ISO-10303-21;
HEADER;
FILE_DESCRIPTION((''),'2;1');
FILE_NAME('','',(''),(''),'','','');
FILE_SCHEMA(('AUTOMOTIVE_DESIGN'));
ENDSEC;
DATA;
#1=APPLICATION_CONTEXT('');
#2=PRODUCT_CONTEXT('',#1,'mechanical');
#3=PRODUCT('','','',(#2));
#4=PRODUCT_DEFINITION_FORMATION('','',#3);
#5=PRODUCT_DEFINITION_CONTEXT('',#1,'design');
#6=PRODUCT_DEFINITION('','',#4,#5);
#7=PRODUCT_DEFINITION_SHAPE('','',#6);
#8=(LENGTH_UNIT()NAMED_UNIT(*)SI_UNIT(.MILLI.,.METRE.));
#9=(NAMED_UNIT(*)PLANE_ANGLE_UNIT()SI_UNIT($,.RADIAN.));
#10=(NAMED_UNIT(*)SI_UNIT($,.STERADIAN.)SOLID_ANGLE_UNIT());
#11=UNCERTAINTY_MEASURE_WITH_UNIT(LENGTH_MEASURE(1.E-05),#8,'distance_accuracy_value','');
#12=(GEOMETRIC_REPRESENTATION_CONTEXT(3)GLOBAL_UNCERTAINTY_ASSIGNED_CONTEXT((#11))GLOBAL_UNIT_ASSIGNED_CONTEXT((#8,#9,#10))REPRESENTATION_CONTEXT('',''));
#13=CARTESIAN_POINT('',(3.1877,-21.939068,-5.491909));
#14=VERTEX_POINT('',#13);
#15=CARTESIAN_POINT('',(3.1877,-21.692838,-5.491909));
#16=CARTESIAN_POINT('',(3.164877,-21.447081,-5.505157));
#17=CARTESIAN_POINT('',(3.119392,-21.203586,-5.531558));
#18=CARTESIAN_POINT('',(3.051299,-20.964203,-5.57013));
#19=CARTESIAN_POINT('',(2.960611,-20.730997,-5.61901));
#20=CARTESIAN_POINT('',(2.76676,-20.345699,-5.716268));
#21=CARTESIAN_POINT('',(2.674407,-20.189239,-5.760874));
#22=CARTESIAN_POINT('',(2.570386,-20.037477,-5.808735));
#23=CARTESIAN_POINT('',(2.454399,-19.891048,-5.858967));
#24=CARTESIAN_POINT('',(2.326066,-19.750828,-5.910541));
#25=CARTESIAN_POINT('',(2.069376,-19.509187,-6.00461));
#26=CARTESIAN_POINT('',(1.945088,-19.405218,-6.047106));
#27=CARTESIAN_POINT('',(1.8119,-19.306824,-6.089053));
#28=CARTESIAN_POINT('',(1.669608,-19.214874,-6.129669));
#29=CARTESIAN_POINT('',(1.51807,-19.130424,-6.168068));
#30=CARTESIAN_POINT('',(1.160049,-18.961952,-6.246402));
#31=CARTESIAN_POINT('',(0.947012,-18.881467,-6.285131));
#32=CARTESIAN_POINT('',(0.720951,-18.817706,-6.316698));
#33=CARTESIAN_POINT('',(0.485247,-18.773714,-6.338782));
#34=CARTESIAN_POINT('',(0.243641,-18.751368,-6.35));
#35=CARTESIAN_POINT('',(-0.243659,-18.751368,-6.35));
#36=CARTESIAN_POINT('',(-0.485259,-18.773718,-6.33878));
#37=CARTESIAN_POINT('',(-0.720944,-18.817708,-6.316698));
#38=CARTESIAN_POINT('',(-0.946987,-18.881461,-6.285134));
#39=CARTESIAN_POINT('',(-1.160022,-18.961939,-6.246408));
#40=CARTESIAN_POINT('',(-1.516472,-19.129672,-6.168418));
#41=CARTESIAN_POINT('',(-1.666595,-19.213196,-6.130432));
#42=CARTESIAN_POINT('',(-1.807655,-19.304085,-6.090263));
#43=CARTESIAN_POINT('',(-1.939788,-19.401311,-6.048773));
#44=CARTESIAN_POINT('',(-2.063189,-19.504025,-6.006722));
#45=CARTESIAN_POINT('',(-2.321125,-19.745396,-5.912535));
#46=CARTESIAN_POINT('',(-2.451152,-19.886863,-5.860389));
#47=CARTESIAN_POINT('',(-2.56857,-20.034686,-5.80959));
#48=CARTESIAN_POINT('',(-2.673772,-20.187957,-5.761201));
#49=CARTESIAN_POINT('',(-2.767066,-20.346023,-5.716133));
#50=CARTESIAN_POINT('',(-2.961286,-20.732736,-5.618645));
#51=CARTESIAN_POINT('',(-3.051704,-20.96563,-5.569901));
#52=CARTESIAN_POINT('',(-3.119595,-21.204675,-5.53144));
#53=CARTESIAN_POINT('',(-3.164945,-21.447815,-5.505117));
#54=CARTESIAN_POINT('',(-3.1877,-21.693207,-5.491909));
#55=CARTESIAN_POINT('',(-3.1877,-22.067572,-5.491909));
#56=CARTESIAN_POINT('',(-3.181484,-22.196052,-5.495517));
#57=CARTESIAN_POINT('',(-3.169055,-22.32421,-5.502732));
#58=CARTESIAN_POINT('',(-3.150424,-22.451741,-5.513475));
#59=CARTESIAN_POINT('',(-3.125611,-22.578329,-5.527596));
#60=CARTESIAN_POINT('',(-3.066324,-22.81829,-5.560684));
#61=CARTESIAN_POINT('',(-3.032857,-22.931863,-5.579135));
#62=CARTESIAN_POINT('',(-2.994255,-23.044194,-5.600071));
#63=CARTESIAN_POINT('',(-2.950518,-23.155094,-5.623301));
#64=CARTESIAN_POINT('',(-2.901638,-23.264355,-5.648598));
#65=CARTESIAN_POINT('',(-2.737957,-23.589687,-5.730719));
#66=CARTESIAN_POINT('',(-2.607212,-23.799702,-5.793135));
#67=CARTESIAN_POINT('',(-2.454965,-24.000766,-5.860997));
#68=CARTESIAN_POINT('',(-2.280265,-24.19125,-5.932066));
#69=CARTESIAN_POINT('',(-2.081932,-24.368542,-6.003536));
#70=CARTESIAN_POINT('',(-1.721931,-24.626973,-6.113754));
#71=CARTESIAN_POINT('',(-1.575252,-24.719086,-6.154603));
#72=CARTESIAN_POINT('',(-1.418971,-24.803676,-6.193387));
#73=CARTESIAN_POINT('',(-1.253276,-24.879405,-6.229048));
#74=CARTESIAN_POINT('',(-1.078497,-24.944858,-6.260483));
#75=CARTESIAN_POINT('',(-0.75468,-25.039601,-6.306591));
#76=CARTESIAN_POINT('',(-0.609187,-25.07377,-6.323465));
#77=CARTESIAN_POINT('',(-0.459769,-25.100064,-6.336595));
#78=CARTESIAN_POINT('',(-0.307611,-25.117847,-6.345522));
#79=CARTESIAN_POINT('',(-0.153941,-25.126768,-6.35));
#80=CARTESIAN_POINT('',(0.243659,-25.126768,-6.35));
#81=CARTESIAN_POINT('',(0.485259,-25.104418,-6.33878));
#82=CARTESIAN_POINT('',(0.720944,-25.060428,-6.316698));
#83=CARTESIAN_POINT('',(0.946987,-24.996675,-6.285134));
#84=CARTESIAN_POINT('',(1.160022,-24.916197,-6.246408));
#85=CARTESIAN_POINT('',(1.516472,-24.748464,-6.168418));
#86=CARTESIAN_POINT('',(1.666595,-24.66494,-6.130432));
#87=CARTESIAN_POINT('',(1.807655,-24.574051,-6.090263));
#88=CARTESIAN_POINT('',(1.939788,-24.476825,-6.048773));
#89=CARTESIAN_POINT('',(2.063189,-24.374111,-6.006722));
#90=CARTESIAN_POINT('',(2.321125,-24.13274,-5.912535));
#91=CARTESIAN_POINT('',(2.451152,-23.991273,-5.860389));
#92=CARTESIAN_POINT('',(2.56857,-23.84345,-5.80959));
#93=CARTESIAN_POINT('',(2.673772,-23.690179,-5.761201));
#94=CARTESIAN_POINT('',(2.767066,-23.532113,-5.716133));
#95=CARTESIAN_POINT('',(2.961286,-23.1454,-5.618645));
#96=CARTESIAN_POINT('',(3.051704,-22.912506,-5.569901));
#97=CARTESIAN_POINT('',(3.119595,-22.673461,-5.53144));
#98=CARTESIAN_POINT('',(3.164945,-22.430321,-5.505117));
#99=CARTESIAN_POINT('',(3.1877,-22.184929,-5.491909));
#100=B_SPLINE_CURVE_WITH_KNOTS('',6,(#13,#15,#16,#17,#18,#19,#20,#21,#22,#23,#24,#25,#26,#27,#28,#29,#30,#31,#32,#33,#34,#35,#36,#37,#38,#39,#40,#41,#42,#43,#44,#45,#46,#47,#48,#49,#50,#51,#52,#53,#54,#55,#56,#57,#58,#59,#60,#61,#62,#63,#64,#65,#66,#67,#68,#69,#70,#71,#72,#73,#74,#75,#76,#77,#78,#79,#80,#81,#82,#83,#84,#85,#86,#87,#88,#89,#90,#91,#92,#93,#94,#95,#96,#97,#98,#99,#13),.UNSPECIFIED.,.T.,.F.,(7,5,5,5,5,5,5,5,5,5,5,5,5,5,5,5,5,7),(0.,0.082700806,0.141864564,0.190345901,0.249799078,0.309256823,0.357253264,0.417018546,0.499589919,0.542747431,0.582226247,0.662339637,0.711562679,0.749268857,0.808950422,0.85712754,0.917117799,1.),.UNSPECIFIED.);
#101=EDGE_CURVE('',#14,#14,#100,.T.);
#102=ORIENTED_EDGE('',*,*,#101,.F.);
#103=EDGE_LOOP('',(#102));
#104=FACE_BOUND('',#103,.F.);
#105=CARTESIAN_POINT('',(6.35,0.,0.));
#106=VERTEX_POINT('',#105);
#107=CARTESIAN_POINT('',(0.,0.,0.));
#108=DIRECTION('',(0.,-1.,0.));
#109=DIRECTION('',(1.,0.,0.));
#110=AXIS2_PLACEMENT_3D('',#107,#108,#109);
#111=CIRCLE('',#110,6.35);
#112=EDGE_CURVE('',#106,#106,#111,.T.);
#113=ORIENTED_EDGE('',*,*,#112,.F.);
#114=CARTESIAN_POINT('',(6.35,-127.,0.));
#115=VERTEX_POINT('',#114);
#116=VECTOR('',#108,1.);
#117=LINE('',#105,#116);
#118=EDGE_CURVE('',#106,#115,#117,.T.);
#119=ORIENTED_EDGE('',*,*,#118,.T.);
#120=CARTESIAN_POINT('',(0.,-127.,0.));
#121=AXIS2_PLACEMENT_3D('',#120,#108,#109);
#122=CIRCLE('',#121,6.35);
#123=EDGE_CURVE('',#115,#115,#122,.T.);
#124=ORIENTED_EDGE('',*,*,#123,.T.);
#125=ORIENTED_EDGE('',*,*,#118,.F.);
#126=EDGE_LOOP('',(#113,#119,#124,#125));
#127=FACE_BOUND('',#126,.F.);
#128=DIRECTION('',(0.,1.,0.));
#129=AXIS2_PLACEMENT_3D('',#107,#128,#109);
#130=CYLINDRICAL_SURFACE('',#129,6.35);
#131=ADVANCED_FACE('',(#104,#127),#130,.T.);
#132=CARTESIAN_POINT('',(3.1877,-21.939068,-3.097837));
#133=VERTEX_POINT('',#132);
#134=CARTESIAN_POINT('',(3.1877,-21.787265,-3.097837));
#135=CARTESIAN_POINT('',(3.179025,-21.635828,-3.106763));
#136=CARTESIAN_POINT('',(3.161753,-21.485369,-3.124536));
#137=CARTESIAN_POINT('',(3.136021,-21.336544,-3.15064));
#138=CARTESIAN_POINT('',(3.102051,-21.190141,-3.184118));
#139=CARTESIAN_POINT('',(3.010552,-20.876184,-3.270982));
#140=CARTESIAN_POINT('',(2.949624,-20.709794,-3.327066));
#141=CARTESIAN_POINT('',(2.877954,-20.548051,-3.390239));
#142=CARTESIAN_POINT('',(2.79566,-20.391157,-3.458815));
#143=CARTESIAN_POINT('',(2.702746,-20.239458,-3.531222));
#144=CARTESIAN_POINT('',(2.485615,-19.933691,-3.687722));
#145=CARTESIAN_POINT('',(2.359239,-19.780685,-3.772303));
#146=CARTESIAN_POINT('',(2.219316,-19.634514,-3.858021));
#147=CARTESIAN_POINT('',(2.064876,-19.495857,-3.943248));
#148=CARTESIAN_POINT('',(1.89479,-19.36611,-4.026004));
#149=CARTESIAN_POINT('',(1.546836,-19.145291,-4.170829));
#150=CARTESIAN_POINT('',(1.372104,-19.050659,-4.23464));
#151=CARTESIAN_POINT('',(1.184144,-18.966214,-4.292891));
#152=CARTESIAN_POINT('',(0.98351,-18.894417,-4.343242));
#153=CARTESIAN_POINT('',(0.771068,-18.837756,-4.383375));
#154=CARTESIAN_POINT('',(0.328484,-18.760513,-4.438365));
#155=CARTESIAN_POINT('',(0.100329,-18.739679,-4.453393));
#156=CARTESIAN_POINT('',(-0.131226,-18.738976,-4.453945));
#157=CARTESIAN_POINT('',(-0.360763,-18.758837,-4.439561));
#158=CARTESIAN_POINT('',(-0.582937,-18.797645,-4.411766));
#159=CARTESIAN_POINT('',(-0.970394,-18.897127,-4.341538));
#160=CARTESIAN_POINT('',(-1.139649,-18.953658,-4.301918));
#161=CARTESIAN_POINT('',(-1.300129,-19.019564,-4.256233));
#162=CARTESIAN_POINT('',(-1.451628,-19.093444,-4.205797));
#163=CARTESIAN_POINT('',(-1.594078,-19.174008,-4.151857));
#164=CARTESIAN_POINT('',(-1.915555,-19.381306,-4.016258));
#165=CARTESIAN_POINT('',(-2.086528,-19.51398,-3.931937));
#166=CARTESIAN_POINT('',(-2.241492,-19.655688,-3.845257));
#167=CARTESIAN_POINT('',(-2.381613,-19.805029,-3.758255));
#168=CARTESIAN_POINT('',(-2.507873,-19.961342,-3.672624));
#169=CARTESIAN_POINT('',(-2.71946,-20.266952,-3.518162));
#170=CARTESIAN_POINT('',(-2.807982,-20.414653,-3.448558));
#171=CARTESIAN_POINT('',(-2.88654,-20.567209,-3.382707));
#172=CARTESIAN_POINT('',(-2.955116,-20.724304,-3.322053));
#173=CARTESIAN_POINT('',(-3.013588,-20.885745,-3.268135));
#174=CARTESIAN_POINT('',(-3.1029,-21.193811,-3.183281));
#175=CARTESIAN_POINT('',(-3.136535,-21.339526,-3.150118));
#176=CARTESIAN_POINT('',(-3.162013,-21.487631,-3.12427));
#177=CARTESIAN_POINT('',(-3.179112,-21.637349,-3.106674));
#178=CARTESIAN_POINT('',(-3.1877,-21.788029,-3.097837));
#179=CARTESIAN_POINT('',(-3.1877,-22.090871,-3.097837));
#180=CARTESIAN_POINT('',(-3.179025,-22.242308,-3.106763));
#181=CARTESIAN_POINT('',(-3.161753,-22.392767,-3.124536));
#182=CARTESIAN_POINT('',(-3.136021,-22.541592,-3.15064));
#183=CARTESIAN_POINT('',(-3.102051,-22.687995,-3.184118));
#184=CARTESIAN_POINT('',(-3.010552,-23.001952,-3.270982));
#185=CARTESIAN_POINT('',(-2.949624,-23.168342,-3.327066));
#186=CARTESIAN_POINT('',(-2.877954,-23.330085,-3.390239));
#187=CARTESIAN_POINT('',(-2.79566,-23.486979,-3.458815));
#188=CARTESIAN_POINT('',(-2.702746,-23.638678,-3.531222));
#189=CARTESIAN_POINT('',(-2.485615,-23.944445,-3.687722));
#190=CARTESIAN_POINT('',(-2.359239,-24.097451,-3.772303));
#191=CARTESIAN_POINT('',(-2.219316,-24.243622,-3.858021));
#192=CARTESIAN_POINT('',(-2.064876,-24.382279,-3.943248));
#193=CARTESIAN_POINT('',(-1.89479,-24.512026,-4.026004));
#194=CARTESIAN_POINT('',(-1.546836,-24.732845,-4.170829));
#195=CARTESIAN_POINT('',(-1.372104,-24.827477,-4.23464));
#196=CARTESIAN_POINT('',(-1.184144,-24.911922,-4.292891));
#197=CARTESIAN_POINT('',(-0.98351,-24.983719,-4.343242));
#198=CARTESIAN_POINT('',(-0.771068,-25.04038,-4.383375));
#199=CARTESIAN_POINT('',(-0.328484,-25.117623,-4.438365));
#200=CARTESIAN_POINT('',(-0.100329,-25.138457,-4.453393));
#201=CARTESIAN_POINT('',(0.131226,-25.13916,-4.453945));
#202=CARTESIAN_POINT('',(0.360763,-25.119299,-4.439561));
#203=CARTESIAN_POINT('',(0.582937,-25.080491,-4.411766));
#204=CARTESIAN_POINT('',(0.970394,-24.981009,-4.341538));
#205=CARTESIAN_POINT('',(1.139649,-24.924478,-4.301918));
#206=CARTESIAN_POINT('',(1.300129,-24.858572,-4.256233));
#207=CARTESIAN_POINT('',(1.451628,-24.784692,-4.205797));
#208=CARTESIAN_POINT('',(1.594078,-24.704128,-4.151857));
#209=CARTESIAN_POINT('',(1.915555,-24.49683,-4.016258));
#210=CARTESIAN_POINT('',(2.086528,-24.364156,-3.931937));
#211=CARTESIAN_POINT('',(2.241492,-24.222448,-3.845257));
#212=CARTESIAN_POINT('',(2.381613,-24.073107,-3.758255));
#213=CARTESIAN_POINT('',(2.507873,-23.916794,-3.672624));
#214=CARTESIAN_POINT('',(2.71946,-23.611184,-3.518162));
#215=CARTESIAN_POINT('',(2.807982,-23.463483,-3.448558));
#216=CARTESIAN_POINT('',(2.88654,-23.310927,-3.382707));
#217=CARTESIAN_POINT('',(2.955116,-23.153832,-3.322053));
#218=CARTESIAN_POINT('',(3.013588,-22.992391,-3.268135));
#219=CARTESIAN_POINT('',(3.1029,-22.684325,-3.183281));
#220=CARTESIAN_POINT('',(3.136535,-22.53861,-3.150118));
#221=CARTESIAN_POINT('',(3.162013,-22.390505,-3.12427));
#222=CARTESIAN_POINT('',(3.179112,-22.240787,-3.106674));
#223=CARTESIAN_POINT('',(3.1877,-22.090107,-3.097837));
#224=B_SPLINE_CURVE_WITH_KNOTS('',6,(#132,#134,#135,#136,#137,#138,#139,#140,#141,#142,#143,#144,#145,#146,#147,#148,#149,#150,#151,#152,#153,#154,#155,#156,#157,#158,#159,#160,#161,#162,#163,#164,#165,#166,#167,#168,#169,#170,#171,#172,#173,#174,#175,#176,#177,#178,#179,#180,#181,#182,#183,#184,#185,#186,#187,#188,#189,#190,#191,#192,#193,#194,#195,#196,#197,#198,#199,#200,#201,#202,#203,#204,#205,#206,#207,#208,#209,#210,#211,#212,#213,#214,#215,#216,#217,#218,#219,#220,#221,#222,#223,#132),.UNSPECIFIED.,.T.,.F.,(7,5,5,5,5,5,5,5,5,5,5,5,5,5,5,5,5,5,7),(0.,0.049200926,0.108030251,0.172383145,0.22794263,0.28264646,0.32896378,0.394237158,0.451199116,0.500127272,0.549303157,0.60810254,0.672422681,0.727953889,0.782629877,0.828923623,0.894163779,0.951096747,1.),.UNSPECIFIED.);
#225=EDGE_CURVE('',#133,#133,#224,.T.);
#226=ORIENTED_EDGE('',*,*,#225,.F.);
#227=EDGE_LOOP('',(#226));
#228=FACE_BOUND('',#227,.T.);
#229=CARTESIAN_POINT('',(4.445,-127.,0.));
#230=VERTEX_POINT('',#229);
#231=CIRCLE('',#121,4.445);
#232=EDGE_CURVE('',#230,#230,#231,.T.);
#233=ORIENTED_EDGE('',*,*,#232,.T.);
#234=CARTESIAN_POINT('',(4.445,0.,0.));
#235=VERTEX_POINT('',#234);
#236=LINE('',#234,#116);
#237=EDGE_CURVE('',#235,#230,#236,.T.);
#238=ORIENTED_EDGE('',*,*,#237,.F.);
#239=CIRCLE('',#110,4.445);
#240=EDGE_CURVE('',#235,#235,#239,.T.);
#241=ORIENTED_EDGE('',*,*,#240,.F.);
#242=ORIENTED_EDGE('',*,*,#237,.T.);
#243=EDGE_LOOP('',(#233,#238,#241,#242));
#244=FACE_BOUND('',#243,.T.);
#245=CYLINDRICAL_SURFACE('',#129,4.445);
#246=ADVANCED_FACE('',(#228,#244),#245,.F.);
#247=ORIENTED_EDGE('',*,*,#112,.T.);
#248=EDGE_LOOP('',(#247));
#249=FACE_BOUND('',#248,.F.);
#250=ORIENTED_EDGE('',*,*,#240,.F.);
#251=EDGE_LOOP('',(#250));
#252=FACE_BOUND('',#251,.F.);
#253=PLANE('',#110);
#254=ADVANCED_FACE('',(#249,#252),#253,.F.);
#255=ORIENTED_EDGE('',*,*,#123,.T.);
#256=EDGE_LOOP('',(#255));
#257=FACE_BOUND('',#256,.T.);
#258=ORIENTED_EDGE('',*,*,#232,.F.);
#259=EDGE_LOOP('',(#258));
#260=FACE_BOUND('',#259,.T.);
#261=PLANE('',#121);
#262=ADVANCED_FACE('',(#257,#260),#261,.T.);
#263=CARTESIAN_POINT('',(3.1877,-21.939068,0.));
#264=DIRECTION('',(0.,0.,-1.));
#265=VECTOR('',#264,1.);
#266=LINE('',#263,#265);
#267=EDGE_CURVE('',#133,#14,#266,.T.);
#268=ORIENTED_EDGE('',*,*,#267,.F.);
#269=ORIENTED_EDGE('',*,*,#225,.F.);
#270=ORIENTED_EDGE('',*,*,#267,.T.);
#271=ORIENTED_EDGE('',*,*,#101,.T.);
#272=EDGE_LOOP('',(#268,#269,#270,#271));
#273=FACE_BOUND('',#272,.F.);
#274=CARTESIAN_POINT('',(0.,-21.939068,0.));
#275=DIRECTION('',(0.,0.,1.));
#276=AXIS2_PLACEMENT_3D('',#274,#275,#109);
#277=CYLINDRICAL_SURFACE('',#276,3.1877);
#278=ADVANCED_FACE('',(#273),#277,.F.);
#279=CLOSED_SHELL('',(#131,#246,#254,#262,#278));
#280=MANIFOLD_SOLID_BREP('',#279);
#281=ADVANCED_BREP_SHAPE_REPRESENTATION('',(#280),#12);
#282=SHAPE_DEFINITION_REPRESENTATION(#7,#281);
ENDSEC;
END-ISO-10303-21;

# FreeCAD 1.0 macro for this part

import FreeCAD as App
import Part
import Sketcher
Q = App.Units.Quantity

doc = App.newDocument("Part")
body = doc.addObject("PartDesign::Body", "Body")

# Sketch on XZ plane
sketch1 = doc.addObject("Sketcher::SketchObject", "Sketch")
body.addObject(sketch1)
sketch1.AttachmentSupport = (doc.XZ_Plane, [""])
sketch1.MapMode = "FlatFace"
sketch1.addGeometry(Part.Circle(App.Vector(0, 0, 0), App.Vector(0, 0, 1), 6.35), False)
sketch1.addConstraint(Sketcher.Constraint("Coincident", 0, 3, -1, 1))
sketch1.addConstraint(Sketcher.Constraint("Diameter", 0, Q("0.5 in")))
pad1 = doc.addObject("PartDesign::Pad", "Pad")
body.addObject(pad1)
pad1.Profile = sketch1
pad1.Length = Q("5 in")

# Sketch on XZ plane
sketch2 = doc.addObject("Sketcher::SketchObject", "Sketch001")
body.addObject(sketch2)
sketch2.AttachmentSupport = (doc.XZ_Plane, [""])
sketch2.MapMode = "FlatFace"
sketch2.addGeometry(Part.Circle(App.Vector(0, 0, 0), App.Vector(0, 0, 1), 4.445), False)
sketch2.addConstraint(Sketcher.Constraint("Coincident", 0, 3, -1, 1))
sketch2.addConstraint(Sketcher.Constraint("Diameter", 0, Q("0.35 in")))
pocket1 = doc.addObject("PartDesign::Pocket", "Pocket")
body.addObject(pocket1)
pocket1.Profile = sketch2
pocket1.Length = Q("5 in")
pocket1.Reversed = True

# Sketch on XY plane
sketch3 = doc.addObject("Sketcher::SketchObject", "Sketch002")
body.addObject(sketch3)
sketch3.AttachmentSupport = (doc.XY_Plane, [""])
sketch3.MapMode = "FlatFace"
sketch3.addGeometry(Part.Circle(App.Vector(0, -21.939068, 0), App.Vector(0, 0, 1), 3.1877), False)
sketch3.addConstraint(Sketcher.Constraint("PointOnObject", 0, 3, -2))
sketch3.addConstraint(Sketcher.Constraint("Diameter", 0, Q("0.251 in")))
sketch3.addConstraint(Sketcher.Constraint("DistanceY", 0, 3, -1, 1, Q("21.939068 mm")))
pocket2 = doc.addObject("PartDesign::Pocket", "Pocket001")
body.addObject(pocket2)
pocket2.Profile = sketch3
pocket2.Type = "ThroughAll"

doc.recompute()
